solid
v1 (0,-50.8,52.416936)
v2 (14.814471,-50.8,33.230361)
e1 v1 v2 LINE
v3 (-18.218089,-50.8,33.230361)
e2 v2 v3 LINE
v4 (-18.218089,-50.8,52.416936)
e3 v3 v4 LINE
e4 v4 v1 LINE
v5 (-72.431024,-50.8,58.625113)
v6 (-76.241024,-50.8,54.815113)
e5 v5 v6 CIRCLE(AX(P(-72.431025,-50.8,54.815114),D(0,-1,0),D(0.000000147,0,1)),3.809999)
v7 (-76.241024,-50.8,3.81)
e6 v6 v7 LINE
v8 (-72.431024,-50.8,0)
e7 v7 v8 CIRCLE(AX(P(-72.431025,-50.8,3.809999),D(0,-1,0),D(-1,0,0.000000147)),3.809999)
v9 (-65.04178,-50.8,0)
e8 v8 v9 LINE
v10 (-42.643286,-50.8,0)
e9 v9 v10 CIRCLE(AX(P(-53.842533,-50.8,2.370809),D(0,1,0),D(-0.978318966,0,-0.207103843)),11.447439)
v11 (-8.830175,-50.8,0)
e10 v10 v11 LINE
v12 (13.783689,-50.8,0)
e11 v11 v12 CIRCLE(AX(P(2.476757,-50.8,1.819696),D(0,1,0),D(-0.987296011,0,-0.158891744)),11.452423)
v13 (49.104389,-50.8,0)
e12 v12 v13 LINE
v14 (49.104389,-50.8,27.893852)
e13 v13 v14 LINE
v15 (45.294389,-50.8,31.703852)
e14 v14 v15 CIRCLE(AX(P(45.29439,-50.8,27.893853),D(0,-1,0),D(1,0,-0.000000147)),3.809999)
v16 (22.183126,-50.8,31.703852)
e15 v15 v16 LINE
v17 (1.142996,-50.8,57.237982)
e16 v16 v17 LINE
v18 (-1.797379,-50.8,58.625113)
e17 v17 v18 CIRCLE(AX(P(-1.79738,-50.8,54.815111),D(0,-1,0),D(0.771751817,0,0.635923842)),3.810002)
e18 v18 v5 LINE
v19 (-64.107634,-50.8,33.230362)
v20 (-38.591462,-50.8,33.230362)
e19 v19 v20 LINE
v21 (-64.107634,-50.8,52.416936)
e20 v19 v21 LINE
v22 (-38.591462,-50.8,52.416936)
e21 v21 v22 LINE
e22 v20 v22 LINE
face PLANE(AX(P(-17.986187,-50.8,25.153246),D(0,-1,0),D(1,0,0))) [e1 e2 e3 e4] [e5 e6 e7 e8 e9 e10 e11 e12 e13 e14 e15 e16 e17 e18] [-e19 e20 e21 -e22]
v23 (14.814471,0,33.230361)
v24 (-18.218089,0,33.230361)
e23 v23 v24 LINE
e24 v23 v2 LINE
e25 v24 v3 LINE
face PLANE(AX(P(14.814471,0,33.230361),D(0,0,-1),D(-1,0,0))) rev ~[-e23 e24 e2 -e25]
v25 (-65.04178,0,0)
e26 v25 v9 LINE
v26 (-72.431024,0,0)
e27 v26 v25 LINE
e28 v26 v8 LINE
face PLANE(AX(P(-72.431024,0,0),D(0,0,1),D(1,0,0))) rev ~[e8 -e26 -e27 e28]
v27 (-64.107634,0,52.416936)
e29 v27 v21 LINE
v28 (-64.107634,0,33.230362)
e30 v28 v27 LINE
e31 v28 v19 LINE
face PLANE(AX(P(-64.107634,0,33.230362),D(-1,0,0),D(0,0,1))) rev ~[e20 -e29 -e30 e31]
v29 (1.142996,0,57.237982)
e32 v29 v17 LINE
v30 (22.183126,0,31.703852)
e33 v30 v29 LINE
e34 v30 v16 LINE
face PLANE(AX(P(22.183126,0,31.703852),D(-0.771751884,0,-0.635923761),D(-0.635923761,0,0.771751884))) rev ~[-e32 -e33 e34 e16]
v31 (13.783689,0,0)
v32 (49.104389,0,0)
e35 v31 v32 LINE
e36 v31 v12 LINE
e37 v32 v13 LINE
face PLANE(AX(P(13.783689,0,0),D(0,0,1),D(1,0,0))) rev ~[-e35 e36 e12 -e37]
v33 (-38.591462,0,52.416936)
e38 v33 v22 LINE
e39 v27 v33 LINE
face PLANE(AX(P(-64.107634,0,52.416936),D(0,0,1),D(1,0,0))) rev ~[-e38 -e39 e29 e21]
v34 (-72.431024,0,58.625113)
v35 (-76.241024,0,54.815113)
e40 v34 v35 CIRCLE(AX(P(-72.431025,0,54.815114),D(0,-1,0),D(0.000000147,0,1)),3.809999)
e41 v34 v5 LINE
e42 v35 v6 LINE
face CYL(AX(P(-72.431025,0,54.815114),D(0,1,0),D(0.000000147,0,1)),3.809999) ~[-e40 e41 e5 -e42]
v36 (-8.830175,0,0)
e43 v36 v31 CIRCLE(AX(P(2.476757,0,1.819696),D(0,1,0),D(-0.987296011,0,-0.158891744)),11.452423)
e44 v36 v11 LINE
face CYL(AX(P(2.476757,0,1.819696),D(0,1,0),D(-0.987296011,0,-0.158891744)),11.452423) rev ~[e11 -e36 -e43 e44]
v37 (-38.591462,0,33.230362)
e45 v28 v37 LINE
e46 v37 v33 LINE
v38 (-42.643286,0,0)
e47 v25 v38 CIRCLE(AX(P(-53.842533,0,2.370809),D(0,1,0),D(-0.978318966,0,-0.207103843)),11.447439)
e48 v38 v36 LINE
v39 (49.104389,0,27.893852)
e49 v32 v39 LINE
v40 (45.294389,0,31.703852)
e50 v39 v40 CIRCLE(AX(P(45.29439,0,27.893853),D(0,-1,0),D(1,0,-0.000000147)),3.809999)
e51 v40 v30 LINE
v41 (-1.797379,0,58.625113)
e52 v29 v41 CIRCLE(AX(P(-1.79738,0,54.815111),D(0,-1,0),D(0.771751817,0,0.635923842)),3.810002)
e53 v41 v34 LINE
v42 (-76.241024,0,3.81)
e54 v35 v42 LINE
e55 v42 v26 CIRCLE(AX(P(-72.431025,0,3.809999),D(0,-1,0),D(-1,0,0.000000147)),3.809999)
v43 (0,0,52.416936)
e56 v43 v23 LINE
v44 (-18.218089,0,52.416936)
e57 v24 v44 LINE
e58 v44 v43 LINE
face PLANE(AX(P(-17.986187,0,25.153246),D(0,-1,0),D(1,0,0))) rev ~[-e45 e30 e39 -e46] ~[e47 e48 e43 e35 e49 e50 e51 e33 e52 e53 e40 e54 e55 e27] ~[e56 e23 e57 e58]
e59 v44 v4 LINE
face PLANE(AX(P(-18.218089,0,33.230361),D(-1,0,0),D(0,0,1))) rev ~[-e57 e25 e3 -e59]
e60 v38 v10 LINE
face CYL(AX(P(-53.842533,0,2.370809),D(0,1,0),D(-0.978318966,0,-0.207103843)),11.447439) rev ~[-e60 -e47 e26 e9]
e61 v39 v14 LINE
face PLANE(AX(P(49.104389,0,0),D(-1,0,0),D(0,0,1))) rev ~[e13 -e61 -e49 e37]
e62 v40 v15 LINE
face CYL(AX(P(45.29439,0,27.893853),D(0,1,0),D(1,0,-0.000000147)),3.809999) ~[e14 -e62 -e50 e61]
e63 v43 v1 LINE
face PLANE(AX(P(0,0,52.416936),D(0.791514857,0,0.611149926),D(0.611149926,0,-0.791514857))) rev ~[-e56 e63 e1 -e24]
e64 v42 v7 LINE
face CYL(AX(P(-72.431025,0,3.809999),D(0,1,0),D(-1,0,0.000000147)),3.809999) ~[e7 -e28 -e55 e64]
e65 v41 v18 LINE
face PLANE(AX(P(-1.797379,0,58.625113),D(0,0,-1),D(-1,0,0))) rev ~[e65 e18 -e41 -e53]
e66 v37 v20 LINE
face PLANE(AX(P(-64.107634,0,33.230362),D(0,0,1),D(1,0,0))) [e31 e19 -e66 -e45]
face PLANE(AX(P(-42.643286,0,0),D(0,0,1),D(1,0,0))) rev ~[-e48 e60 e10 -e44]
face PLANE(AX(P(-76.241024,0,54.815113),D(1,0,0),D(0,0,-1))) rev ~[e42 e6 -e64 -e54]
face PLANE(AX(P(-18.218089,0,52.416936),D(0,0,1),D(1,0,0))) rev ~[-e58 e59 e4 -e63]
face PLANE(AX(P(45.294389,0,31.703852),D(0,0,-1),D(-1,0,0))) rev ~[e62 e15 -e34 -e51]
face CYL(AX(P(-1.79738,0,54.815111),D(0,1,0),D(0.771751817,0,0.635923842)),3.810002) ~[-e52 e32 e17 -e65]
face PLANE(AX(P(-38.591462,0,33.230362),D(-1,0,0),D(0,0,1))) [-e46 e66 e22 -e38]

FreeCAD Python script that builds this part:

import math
import FreeCAD as App
import Part
import Sketcher
Q = App.Units.Quantity

doc = App.newDocument("Part")
body = doc.addObject("PartDesign::Body", "Body")

# Sketch on XZ plane
sketch1 = body.newObject("Sketcher::SketchObject", "Sketch")
sketch1.AttachmentSupport = (doc.getObject("XZ_Plane"), [""])
sketch1.MapMode = "FlatFace"
sketch1.addGeometry(Part.ArcOfCircle(Part.Circle(App.Vector(-72.431025, 54.815114, 0), App.Vector(0, 0, 1), 3.809999), math.radians(89.999992), math.radians(180.000008)), False)
sketch1.addGeometry(Part.LineSegment(App.Vector(-76.241024, 54.815113, 0), App.Vector(-76.241024, 3.81, 0)), False)
sketch1.addGeometry(Part.ArcOfCircle(Part.Circle(App.Vector(-72.431025, 3.809999, 0), App.Vector(0, 0, 1), 3.809999), math.radians(179.999992), math.radians(270.000008)), False)
sketch1.addGeometry(Part.LineSegment(App.Vector(-72.431024, 0, 0), App.Vector(-65.04178, 0, 0)), False)
sketch1.addGeometry(Part.ArcOfCircle(Part.Circle(App.Vector(-53.842533, 2.370809, 0), App.Vector(0, 0, 1), 11.447439), math.radians(-11.952684), math.radians(191.952684)), False)
sketch1.addGeometry(Part.LineSegment(App.Vector(-42.643286, 0, 0), App.Vector(-8.830175, 0, 0)), False)
sketch1.addGeometry(Part.ArcOfCircle(Part.Circle(App.Vector(2.476757, 1.819696, 0), App.Vector(0, 0, 1), 11.452423), math.radians(-9.142575), math.radians(189.142575)), False)
sketch1.addGeometry(Part.LineSegment(App.Vector(13.783689, 0, 0), App.Vector(49.104389, 0, 0)), False)
sketch1.addGeometry(Part.LineSegment(App.Vector(49.104389, 0, 0), App.Vector(49.104389, 27.893852, 0)), False)
sketch1.addGeometry(Part.ArcOfCircle(Part.Circle(App.Vector(45.29439, 27.893853, 0), App.Vector(0, 0, 1), 3.809999), math.radians(-0.000008), math.radians(90.000008)), False)
sketch1.addGeometry(Part.LineSegment(App.Vector(45.294389, 31.703852, 0), App.Vector(22.183126, 31.703852, 0)), False)
sketch1.addGeometry(Part.LineSegment(App.Vector(22.183126, 31.703852, 0), App.Vector(1.142996, 57.237982, 0)), False)
sketch1.addGeometry(Part.ArcOfCircle(Part.Circle(App.Vector(-1.79738, 54.815111, 0), App.Vector(0, 0, 1), 3.810002), math.radians(39.488538), math.radians(89.999982)), False)
sketch1.addGeometry(Part.LineSegment(App.Vector(-1.797379, 58.625113, 0), App.Vector(-72.431024, 58.625113, 0)), False)
sketch1.addGeometry(Part.LineSegment(App.Vector(14.814471, 33.230361, 0), App.Vector(-18.218089, 33.230361, 0)), False)
sketch1.addGeometry(Part.LineSegment(App.Vector(-18.218089, 33.230361, 0), App.Vector(-18.218089, 52.416936, 0)), False)
sketch1.addGeometry(Part.LineSegment(App.Vector(-18.218089, 52.416936, 0), App.Vector(0, 52.416936, 0)), False)
sketch1.addGeometry(Part.LineSegment(App.Vector(0, 52.416936, 0), App.Vector(14.814471, 33.230361, 0)), False)
sketch1.addGeometry(Part.LineSegment(App.Vector(-38.591462, 33.230362, 0), App.Vector(-64.107634, 33.230362, 0)), False)
sketch1.addGeometry(Part.LineSegment(App.Vector(-64.107634, 33.230362, 0), App.Vector(-64.107634, 52.416936, 0)), False)
sketch1.addGeometry(Part.LineSegment(App.Vector(-64.107634, 52.416936, 0), App.Vector(-38.591462, 52.416936, 0)), False)
sketch1.addGeometry(Part.LineSegment(App.Vector(-38.591462, 52.416936, 0), App.Vector(-38.591462, 33.230362, 0)), False)
sketch1.addConstraint(Sketcher.Constraint("Coincident", 0, 2, 1, 1))
sketch1.addConstraint(Sketcher.Constraint("Coincident", 1, 2, 2, 1))
sketch1.addConstraint(Sketcher.Constraint("Coincident", 2, 2, 3, 1))
sketch1.addConstraint(Sketcher.Constraint("Coincident", 3, 2, 4, 2))
sketch1.addConstraint(Sketcher.Constraint("Coincident", 4, 1, 5, 1))
sketch1.addConstraint(Sketcher.Constraint("Coincident", 5, 2, 6, 2))
sketch1.addConstraint(Sketcher.Constraint("Coincident", 6, 1, 7, 1))
sketch1.addConstraint(Sketcher.Constraint("Coincident", 7, 2, 8, 1))
sketch1.addConstraint(Sketcher.Constraint("Coincident", 8, 2, 9, 1))
sketch1.addConstraint(Sketcher.Constraint("Coincident", 9, 2, 10, 1))
sketch1.addConstraint(Sketcher.Constraint("Coincident", 10, 2, 11, 1))
sketch1.addConstraint(Sketcher.Constraint("Coincident", 11, 2, 12, 1))
sketch1.addConstraint(Sketcher.Constraint("Coincident", 12, 2, 13, 1))
sketch1.addConstraint(Sketcher.Constraint("Coincident", 13, 2, 0, 1))
sketch1.addConstraint(Sketcher.Constraint("Coincident", 14, 2, 15, 1))
sketch1.addConstraint(Sketcher.Constraint("Coincident", 15, 2, 16, 1))
sketch1.addConstraint(Sketcher.Constraint("Coincident", 16, 2, 17, 1))
sketch1.addConstraint(Sketcher.Constraint("Coincident", 17, 2, 14, 1))
sketch1.addConstraint(Sketcher.Constraint("Coincident", 18, 2, 19, 1))
sketch1.addConstraint(Sketcher.Constraint("Coincident", 19, 2, 20, 1))
sketch1.addConstraint(Sketcher.Constraint("Coincident", 20, 2, 21, 1))
sketch1.addConstraint(Sketcher.Constraint("Coincident", 21, 2, 18, 1))
sketch1.addConstraint(Sketcher.Constraint("Vertical", 1))
sketch1.addConstraint(Sketcher.Constraint("Horizontal", 3))
sketch1.addConstraint(Sketcher.Constraint("Horizontal", 5))
sketch1.addConstraint(Sketcher.Constraint("Horizontal", 7))
sketch1.addConstraint(Sketcher.Constraint("Vertical", 8))
sketch1.addConstraint(Sketcher.Constraint("Horizontal", 10))
sketch1.addConstraint(Sketcher.Constraint("Horizontal", 13))
sketch1.addConstraint(Sketcher.Constraint("Horizontal", 14))
sketch1.addConstraint(Sketcher.Constraint("Vertical", 15))
sketch1.addConstraint(Sketcher.Constraint("Horizontal", 16))
sketch1.addConstraint(Sketcher.Constraint("Horizontal", 18))
sketch1.addConstraint(Sketcher.Constraint("Vertical", 19))
sketch1.addConstraint(Sketcher.Constraint("Horizontal", 20))
sketch1.addConstraint(Sketcher.Constraint("Vertical", 21))
sketch1.addConstraint(Sketcher.Constraint("PointOnObject", 2, 2, -1))
sketch1.addConstraint(Sketcher.Constraint("PointOnObject", 4, 1, -1))
sketch1.addConstraint(Sketcher.Constraint("PointOnObject", 6, 1, -1))
sketch1.addConstraint(Sketcher.Constraint("PointOnObject", 16, 2, -2))
sketch1.addConstraint(Sketcher.Constraint("Radius", 0, Q("0.15 in")))
sketch1.addConstraint(Sketcher.Constraint("Radius", 2, Q("0.15 in")))
sketch1.addConstraint(Sketcher.Constraint("Radius", 9, Q("0.15 in")))
sketch1.addConstraint(Sketcher.Constraint("Radius", 12, Q("0.1500001 in")))
sketch1.addConstraint(Sketcher.Constraint("DistanceY", -1, 1, 1, 2, Q("0.15 in")))
sketch1.addConstraint(Sketcher.Constraint("DistanceX", 1, 2, 2, 2, Q("0.15 in")))
sketch1.addConstraint(Sketcher.Constraint("DistanceX", 9, 2, 8, 2, Q("0.15 in")))
sketch1.addConstraint(Sketcher.Constraint("DistanceY", 8, 2, 9, 2, Q("0.15 in")))
sketch1.addConstraint(Sketcher.Constraint("DistanceX", 0, 2, 13, 2, Q("0.15 in")))
sketch1.addConstraint(Sketcher.Constraint("DistanceY", 0, 2, 13, 2, Q("0.15 in")))
sketch1.addConstraint(Sketcher.Constraint("DistanceX", -1, 1, 11, 2, Q("0.0449998 in")))
sketch1.addConstraint(Sketcher.Constraint("Radius", 4, Q("11.447439 mm")))
sketch1.addConstraint(Sketcher.Constraint("DistanceX", 7, 1, 7, 2, Q("35.3207 mm")))
sketch1.addConstraint(Sketcher.Constraint("DistanceX", 3, 2, -1, 1, Q("2.5607 in")))
sketch1.addConstraint(Sketcher.Constraint("Radius", 6, Q("11.452423 mm")))
sketch1.addConstraint(Sketcher.Constraint("DistanceX", 5, 1, 5, 2, Q("33.813111 mm")))
sketch1.addConstraint(Sketcher.Constraint("DistanceX", 14, 2, 14, 1, Q("33.03256 mm")))
sketch1.addConstraint(Sketcher.Constraint("DistanceX", 16, 1, 16, 2, Q("18.218089 mm")))
sketch1.addConstraint(Sketcher.Constraint("DistanceX", 18, 2, 18, 1, Q("25.516171 mm")))
sketch1.addConstraint(Sketcher.Constraint("DistanceY", 8, 1, 8, 2, Q("27.893852 mm")))
sketch1.addConstraint(Sketcher.Constraint("Distance", 11, Q("33.085932 mm")))
sketch1.addConstraint(Sketcher.Constraint("DistanceX", 3, 1, 3, 2, Q("7.389244 mm")))
sketch1.addConstraint(Sketcher.Constraint("DistanceX", 10, 2, 10, 1, Q("23.111263 mm")))
sketch1.addConstraint(Sketcher.Constraint("DistanceX", 13, 2, 13, 1, Q("70.633645 mm")))
sketch1.addConstraint(Sketcher.Constraint("DistanceY", 1, 2, 1, 1, Q("51.005113 mm")))
sketch1.addConstraint(Sketcher.Constraint("DistanceY", 15, 1, 15, 2, Q("19.186575 mm")))
sketch1.addConstraint(Sketcher.Constraint("DistanceY", 19, 1, 19, 2, Q("19.186575 mm")))
sketch1.addConstraint(Sketcher.Constraint("DistanceY", -1, 1, 4, 3, Q("2.370809 mm")))
sketch1.addConstraint(Sketcher.Constraint("DistanceX", -1, 1, 9, 3, Q("45.29439 mm")))
sketch1.addConstraint(Sketcher.Constraint("DistanceY", -1, 1, 14, 2, Q("33.230361 mm")))
sketch1.addConstraint(Sketcher.Constraint("DistanceY", -1, 1, 18, 2, Q("33.230362 mm")))
sketch1.addConstraint(Sketcher.Constraint("DistanceX", 0, 3, 18, 2, Q("8.323391 mm")))
pad1 = body.newObject("PartDesign::Pad", "Pad")
pad1.Profile = sketch1
pad1.Length = Q("2 in")

doc.recompute()
